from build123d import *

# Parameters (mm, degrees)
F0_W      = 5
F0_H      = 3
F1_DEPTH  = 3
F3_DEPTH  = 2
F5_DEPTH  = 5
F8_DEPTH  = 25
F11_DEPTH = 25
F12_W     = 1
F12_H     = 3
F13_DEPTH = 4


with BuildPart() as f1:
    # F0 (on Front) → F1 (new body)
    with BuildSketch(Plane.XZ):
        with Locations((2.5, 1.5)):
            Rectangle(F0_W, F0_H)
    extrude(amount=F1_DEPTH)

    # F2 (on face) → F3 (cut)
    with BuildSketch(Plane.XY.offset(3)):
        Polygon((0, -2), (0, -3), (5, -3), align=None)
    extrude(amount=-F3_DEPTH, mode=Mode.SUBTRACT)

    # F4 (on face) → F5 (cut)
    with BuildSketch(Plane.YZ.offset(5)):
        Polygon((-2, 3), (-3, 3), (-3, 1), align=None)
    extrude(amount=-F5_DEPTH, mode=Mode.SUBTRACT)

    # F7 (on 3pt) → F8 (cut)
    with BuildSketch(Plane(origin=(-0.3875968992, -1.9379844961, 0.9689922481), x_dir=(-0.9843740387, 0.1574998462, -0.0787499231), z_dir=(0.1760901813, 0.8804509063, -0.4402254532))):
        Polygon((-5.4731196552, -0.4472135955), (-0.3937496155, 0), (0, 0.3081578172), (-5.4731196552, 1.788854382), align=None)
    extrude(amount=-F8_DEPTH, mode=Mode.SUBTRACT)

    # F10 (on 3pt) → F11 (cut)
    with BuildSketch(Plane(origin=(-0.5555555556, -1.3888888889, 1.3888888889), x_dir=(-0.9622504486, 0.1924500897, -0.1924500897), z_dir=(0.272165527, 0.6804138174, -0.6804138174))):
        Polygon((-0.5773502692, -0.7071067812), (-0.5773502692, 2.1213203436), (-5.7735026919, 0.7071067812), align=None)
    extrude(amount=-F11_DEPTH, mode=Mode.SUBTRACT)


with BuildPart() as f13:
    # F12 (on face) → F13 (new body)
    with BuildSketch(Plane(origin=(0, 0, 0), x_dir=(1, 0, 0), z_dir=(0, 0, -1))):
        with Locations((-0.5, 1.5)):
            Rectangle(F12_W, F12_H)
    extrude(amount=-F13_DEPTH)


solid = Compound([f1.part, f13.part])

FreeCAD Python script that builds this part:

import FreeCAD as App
import Part
import Sketcher

doc = App.newDocument("Part")
params = doc.addObject("Spreadsheet::Sheet", "Params")
for row, (alias, value) in enumerate([
    ("sketch1_width", "5 mm"),
    ("sketch1_height", "3 mm"),
    ("pad1_length", "3 mm"),
    ("sketch2_width", "5 mm"),
    ("sketch2_height", "1 mm"),
    ("pocket1_length", "2 mm"),
    ("sketch3_width", "1 mm"),
    ("sketch3_height", "2 mm"),
    ("pocket2_length", "5 mm"),
    ("sketch4_length", "0.5 mm"),
    ("pocket3_length", "25 mm"),
    ("pocket4_length", "25 mm"),
    ("sketch6_width", "1 mm"),
    ("sketch6_height", "3 mm"),
    ("pad2_length", "4 mm"),
], start=1):
    params.set(f"A{row}", alias)
    params.set(f"B{row}", "=" + value)
    params.setAlias(f"B{row}", alias)

body = doc.addObject("PartDesign::Body", "Body")

# Sketch on XZ plane
sketch1 = doc.addObject("Sketcher::SketchObject", "Sketch")
body.addObject(sketch1)
sketch1.AttachmentSupport = (doc.XZ_Plane, [""])
sketch1.MapMode = "FlatFace"
sketch1.addGeometry(Part.LineSegment(App.Vector(0, 3, 0), App.Vector(0, 0, 0)), False)
sketch1.addGeometry(Part.LineSegment(App.Vector(0, 0, 0), App.Vector(5, 0, 0)), False)
sketch1.addGeometry(Part.LineSegment(App.Vector(5, 0, 0), App.Vector(5, 3, 0)), False)
sketch1.addGeometry(Part.LineSegment(App.Vector(5, 3, 0), App.Vector(0, 3, 0)), False)
sketch1.addConstraint(Sketcher.Constraint("Coincident", 0, 2, 1, 1))
sketch1.addConstraint(Sketcher.Constraint("Coincident", 1, 2, 2, 1))
sketch1.addConstraint(Sketcher.Constraint("Coincident", 2, 2, 3, 1))
sketch1.addConstraint(Sketcher.Constraint("Coincident", 3, 2, 0, 1))
sketch1.addConstraint(Sketcher.Constraint("Vertical", 0))
sketch1.addConstraint(Sketcher.Constraint("Horizontal", 1))
sketch1.addConstraint(Sketcher.Constraint("Vertical", 2))
sketch1.addConstraint(Sketcher.Constraint("Horizontal", 3))
sketch1.addConstraint(Sketcher.Constraint("Coincident", 0, 2, -1, 1))
sketch1.addConstraint(Sketcher.Constraint("DistanceX", 1, 1, 1, 2, 5.0))
sketch1.addConstraint(Sketcher.Constraint("DistanceY", 0, 2, 0, 1, 3.0))
sketch1.setExpression("Constraints[9]", "Params.sketch1_width")
sketch1.setExpression("Constraints[10]", "Params.sketch1_height")
pad1 = doc.addObject("PartDesign::Pad", "Pad")
body.addObject(pad1)
pad1.Profile = sketch1
pad1.setExpression("Length", "Params.pad1_length")

# Sketch on XY plane
sketch2 = doc.addObject("Sketcher::SketchObject", "Sketch001")
body.addObject(sketch2)
sketch2.AttachmentSupport = (doc.XY_Plane, [""])
sketch2.MapMode = "FlatFace"
sketch2.AttachmentOffset = App.Placement(App.Vector(0, 0, 3), App.Rotation())
sketch2.addGeometry(Part.LineSegment(App.Vector(0, -2, 0), App.Vector(0, -3, 0)), False)
sketch2.addGeometry(Part.LineSegment(App.Vector(0, -3, 0), App.Vector(5, -3, 0)), False)
sketch2.addGeometry(Part.LineSegment(App.Vector(5, -3, 0), App.Vector(0, -2, 0)), False)
sketch2.addConstraint(Sketcher.Constraint("Coincident", 0, 2, 1, 1))
sketch2.addConstraint(Sketcher.Constraint("Coincident", 1, 2, 2, 1))
sketch2.addConstraint(Sketcher.Constraint("Coincident", 2, 2, 0, 1))
sketch2.addConstraint(Sketcher.Constraint("Vertical", 0))
sketch2.addConstraint(Sketcher.Constraint("Horizontal", 1))
sketch2.addConstraint(Sketcher.Constraint("PointOnObject", 0, 2, -2))
sketch2.addConstraint(Sketcher.Constraint("DistanceX", 1, 1, 1, 2, 5.0))
sketch2.addConstraint(Sketcher.Constraint("DistanceY", 0, 2, 0, 1, 1.0))
sketch2.addConstraint(Sketcher.Constraint("DistanceY", 0, 2, -1, 1, 3.0))
sketch2.setExpression("Constraints[6]", "Params.sketch2_width")
sketch2.setExpression("Constraints[7]", "Params.sketch2_height")
pocket1 = doc.addObject("PartDesign::Pocket", "Pocket")
body.addObject(pocket1)
pocket1.Profile = sketch2
pocket1.setExpression("Length", "Params.pocket1_length")

# Sketch on YZ plane
sketch3 = doc.addObject("Sketcher::SketchObject", "Sketch002")
body.addObject(sketch3)
sketch3.AttachmentSupport = (doc.YZ_Plane, [""])
sketch3.MapMode = "FlatFace"
sketch3.AttachmentOffset = App.Placement(App.Vector(0, 0, 5), App.Rotation())
sketch3.addGeometry(Part.LineSegment(App.Vector(-2, 3, 0), App.Vector(-3, 3, 0)), False)
sketch3.addGeometry(Part.LineSegment(App.Vector(-3, 3, 0), App.Vector(-3, 1, 0)), False)
sketch3.addGeometry(Part.LineSegment(App.Vector(-3, 1, 0), App.Vector(-2, 3, 0)), False)
sketch3.addConstraint(Sketcher.Constraint("Coincident", 0, 2, 1, 1))
sketch3.addConstraint(Sketcher.Constraint("Coincident", 1, 2, 2, 1))
sketch3.addConstraint(Sketcher.Constraint("Coincident", 2, 2, 0, 1))
sketch3.addConstraint(Sketcher.Constraint("Horizontal", 0))
sketch3.addConstraint(Sketcher.Constraint("Vertical", 1))
sketch3.addConstraint(Sketcher.Constraint("DistanceX", 0, 2, 0, 1, 1.0))
sketch3.addConstraint(Sketcher.Constraint("DistanceY", 1, 2, 1, 1, 2.0))
sketch3.addConstraint(Sketcher.Constraint("DistanceX", 0, 2, -1, 1, 3.0))
sketch3.addConstraint(Sketcher.Constraint("DistanceY", -1, 1, 0, 2, 3.0))
sketch3.setExpression("Constraints[5]", "Params.sketch3_width")
sketch3.setExpression("Constraints[6]", "Params.sketch3_height")
pocket2 = doc.addObject("PartDesign::Pocket", "Pocket001")
body.addObject(pocket2)
pocket2.Profile = sketch3
pocket2.setExpression("Length", "Params.pocket2_length")

# Sketch on an angled plane
sketch4 = doc.addObject("Sketcher::SketchObject", "Sketch003")
body.addObject(sketch4)
sketch4.Placement = App.Placement(App.Vector(-0.387597, -1.937984, 0.968992), App.Rotation(App.Vector(-0.984374039, 0.157499846, -0.078749923), App.Vector(0, 0.447213595, 0.894427191), App.Vector(0.176090181, 0.880450906, -0.440225453), "ZXY"))
sketch4.addGeometry(Part.LineSegment(App.Vector(-5.47, -0.45, 0), App.Vector(-0.39, 0, 0)), False)
sketch4.addGeometry(Part.LineSegment(App.Vector(-0.39, 0, 0), App.Vector(0, 0.31, 0)), False)
sketch4.addGeometry(Part.LineSegment(App.Vector(0, 0.31, 0), App.Vector(-5.47, 1.79, 0)), False)
sketch4.addGeometry(Part.LineSegment(App.Vector(-5.47, 1.79, 0), App.Vector(-5.47, -0.45, 0)), False)
sketch4.addConstraint(Sketcher.Constraint("Coincident", 0, 2, 1, 1))
sketch4.addConstraint(Sketcher.Constraint("Coincident", 1, 2, 2, 1))
sketch4.addConstraint(Sketcher.Constraint("Coincident", 2, 2, 3, 1))
sketch4.addConstraint(Sketcher.Constraint("Coincident", 3, 2, 0, 1))
sketch4.addConstraint(Sketcher.Constraint("Vertical", 3))
sketch4.addConstraint(Sketcher.Constraint("PointOnObject", 0, 2, -1))
sketch4.addConstraint(Sketcher.Constraint("PointOnObject", 1, 2, -2))
sketch4.addConstraint(Sketcher.Constraint("Distance", 1, 0.5))
sketch4.addConstraint(Sketcher.Constraint("Distance", 0, 5.09902))
sketch4.addConstraint(Sketcher.Constraint("DistanceY", 3, 2, 3, 1, 2.236068))
sketch4.addConstraint(Sketcher.Constraint("DistanceX", 0, 2, -1, 1, 0.39375))
sketch4.addConstraint(Sketcher.Constraint("DistanceX", 2, 2, -1, 1, 5.47312))
sketch4.setExpression("Constraints[7]", "Params.sketch4_length")
pocket3 = doc.addObject("PartDesign::Pocket", "Pocket002")
body.addObject(pocket3)
pocket3.Profile = sketch4
pocket3.setExpression("Length", "Params.pocket3_length")

# Sketch on an angled plane
sketch5 = doc.addObject("Sketcher::SketchObject", "Sketch004")
body.addObject(sketch5)
sketch5.Placement = App.Placement(App.Vector(-0.555556, -1.388889, 1.388889), App.Rotation(App.Vector(-0.962250449, 0.19245009, -0.19245009), App.Vector(0, 0.707106781, 0.707106781), App.Vector(0.272165527, 0.680413817, -0.680413817), "ZXY"))
sketch5.addGeometry(Part.LineSegment(App.Vector(-0.6, -0.7, 0), App.Vector(-0.6, 2.1, 0)), False)
sketch5.addGeometry(Part.LineSegment(App.Vector(-0.6, 2.1, 0), App.Vector(-5.8, 0.7, 0)), False)
sketch5.addGeometry(Part.LineSegment(App.Vector(-5.8, 0.7, 0), App.Vector(-0.6, -0.7, 0)), False)
sketch5.addConstraint(Sketcher.Constraint("Coincident", 0, 2, 1, 1))
sketch5.addConstraint(Sketcher.Constraint("Coincident", 1, 2, 2, 1))
sketch5.addConstraint(Sketcher.Constraint("Coincident", 2, 2, 0, 1))
sketch5.addConstraint(Sketcher.Constraint("Vertical", 0))
sketch5.addConstraint(Sketcher.Constraint("Equal", 1, 2))
sketch5.addConstraint(Sketcher.Constraint("DistanceY", 0, 1, 0, 2, 2.828427))
sketch5.addConstraint(Sketcher.Constraint("DistanceX", 0, 2, -1, 1, 0.57735))
sketch5.addConstraint(Sketcher.Constraint("DistanceY", -1, 1, 0, 2, 2.12132))
sketch5.addConstraint(Sketcher.Constraint("Distance", 1, 5.385165))
pocket4 = doc.addObject("PartDesign::Pocket", "Pocket003")
body.addObject(pocket4)
pocket4.Profile = sketch5
pocket4.setExpression("Length", "Params.pocket4_length")
body2 = doc.addObject("PartDesign::Body", "Body001")

# Sketch on XY plane
sketch6 = doc.addObject("Sketcher::SketchObject", "Sketch005")
body2.addObject(sketch6)
sketch6.AttachmentSupport = (doc.getObject("XY_Plane001"), [""])
sketch6.MapMode = "FlatFace"
sketch6.addGeometry(Part.LineSegment(App.Vector(-1, -3, 0), App.Vector(-1, 0, 0)), False)
sketch6.addGeometry(Part.LineSegment(App.Vector(-1, 0, 0), App.Vector(0, 0, 0)), False)
sketch6.addGeometry(Part.LineSegment(App.Vector(0, 0, 0), App.Vector(0, -3, 0)), False)
sketch6.addGeometry(Part.LineSegment(App.Vector(0, -3, 0), App.Vector(-1, -3, 0)), False)
sketch6.addConstraint(Sketcher.Constraint("Coincident", 0, 2, 1, 1))
sketch6.addConstraint(Sketcher.Constraint("Coincident", 1, 2, 2, 1))
sketch6.addConstraint(Sketcher.Constraint("Coincident", 2, 2, 3, 1))
sketch6.addConstraint(Sketcher.Constraint("Coincident", 3, 2, 0, 1))
sketch6.addConstraint(Sketcher.Constraint("Vertical", 0))
sketch6.addConstraint(Sketcher.Constraint("Horizontal", 1))
sketch6.addConstraint(Sketcher.Constraint("Vertical", 2))
sketch6.addConstraint(Sketcher.Constraint("Horizontal", 3))
sketch6.addConstraint(Sketcher.Constraint("Coincident", 1, 2, -1, 1))
sketch6.addConstraint(Sketcher.Constraint("DistanceX", 1, 1, 1, 2, 1.0))
sketch6.addConstraint(Sketcher.Constraint("DistanceY", 0, 1, 0, 2, 3.0))
sketch6.setExpression("Constraints[9]", "Params.sketch6_width")
sketch6.setExpression("Constraints[10]", "Params.sketch6_height")
pad2 = doc.addObject("PartDesign::Pad", "Pad001")
body2.addObject(pad2)
pad2.Profile = sketch6
pad2.setExpression("Length", "Params.pad2_length")

doc.recompute()
